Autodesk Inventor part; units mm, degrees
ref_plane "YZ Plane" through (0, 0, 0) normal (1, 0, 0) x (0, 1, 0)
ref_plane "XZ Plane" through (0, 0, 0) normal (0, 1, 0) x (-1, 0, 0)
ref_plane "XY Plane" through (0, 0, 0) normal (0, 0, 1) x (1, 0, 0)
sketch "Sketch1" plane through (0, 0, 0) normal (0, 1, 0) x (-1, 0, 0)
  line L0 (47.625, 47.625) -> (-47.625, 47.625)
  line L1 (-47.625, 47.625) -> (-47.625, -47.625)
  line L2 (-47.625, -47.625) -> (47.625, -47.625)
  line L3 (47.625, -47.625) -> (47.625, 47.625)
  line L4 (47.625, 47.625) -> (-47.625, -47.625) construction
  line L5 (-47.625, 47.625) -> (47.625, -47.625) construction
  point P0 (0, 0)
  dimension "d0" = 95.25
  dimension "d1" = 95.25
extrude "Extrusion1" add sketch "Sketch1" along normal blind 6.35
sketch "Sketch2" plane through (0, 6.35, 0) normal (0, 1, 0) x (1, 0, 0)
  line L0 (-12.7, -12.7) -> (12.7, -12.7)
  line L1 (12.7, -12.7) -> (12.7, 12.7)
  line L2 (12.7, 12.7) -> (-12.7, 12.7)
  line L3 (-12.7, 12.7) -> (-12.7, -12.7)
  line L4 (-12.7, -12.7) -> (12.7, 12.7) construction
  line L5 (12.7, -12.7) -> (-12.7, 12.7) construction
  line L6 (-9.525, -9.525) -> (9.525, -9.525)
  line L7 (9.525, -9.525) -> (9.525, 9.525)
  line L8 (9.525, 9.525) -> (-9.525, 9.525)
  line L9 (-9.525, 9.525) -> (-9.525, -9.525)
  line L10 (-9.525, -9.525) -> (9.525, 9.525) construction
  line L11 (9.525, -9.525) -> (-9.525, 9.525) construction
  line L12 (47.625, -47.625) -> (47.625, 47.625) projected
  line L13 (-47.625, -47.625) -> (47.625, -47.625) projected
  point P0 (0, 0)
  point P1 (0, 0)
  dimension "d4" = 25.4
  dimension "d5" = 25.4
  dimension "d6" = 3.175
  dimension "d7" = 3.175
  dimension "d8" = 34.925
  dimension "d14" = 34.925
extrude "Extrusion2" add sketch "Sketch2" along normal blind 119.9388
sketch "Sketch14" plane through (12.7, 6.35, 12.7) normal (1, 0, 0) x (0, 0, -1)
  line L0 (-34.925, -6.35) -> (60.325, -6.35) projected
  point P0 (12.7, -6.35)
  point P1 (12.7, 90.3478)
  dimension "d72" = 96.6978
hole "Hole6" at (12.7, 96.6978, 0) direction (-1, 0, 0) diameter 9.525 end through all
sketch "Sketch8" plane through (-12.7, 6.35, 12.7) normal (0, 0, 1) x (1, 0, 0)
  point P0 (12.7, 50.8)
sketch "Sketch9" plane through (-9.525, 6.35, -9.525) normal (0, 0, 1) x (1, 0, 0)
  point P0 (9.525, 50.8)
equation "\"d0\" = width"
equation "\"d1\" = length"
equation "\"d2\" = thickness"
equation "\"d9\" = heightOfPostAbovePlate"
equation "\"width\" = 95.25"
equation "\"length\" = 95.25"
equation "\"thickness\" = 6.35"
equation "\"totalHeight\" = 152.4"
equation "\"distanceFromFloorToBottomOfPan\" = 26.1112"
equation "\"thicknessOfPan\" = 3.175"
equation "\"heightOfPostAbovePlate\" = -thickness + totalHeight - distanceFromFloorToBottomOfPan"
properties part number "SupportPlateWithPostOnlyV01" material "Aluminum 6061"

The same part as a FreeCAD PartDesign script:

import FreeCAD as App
import Part
import Sketcher
from FreeCAD import Vector
Q = App.Units.Quantity

doc = App.newDocument("Part")
body = doc.addObject("PartDesign::Body", "Body")

# Sketch on XZ plane
sketch1 = doc.addObject("Sketcher::SketchObject", "Sketch")
body.addObject(sketch1)
sketch1.AttachmentSupport = (doc.XZ_Plane, [""])
sketch1.MapMode = "FlatFace"
sketch1.addGeometry([
    Part.LineSegment(Vector(-47.625, -47.625, 0), Vector(-47.625, 47.625, 0)),
    Part.LineSegment(Vector(-47.625, 47.625, 0), Vector(47.625, 47.625, 0)),
    Part.LineSegment(Vector(47.625, 47.625, 0), Vector(47.625, -47.625, 0)),
    Part.LineSegment(Vector(47.625, -47.625, 0), Vector(-47.625, -47.625, 0)),
], False)
sketch1.addConstraint([
    Sketcher.Constraint("Coincident", 0, 2, 1, 1),
    Sketcher.Constraint("Coincident", 1, 2, 2, 1),
    Sketcher.Constraint("Coincident", 2, 2, 3, 1),
    Sketcher.Constraint("Coincident", 3, 2, 0, 1),
    Sketcher.Constraint("Vertical", 0),
    Sketcher.Constraint("Horizontal", 1),
    Sketcher.Constraint("Vertical", 2),
    Sketcher.Constraint("Horizontal", 3),
    Sketcher.Constraint("Symmetric", 0, 2, 2, 2, -1, 1),
    Sketcher.Constraint("Equal", 3, 0),
    Sketcher.Constraint("DistanceX", 1, 1, 1, 2, Q("3.75 in")),
])
pad1 = doc.addObject("PartDesign::Pad", "Pad")
body.addObject(pad1)
pad1.Profile = sketch1
pad1.Length = Q("0.25 in")
pad1.Reversed = True

# Sketch on XZ plane
sketch2 = doc.addObject("Sketcher::SketchObject", "Sketch001")
body.addObject(sketch2)
sketch2.AttachmentSupport = (doc.XZ_Plane, [""])
sketch2.MapMode = "FlatFace"
sketch2.AttachmentOffset = App.Placement(Vector(0, 0, -0.25 * 25.4), App.Rotation())
sketch2.addGeometry([
    Part.LineSegment(Vector(-12.7, -12.7, 0), Vector(-12.7, 12.7, 0)),  # 0
    Part.LineSegment(Vector(-12.7, 12.7, 0), Vector(12.7, 12.7, 0)),  # 1
    Part.LineSegment(Vector(12.7, 12.7, 0), Vector(12.7, -12.7, 0)),  # 2
    Part.LineSegment(Vector(12.7, -12.7, 0), Vector(-12.7, -12.7, 0)),  # 3
    Part.LineSegment(Vector(9.525, 9.525, 0), Vector(-9.525, 9.525, 0)),  # 4
    Part.LineSegment(Vector(-9.525, 9.525, 0), Vector(-9.525, -9.525, 0)),  # 5
    Part.LineSegment(Vector(-9.525, -9.525, 0), Vector(9.525, -9.525, 0)),  # 6
    Part.LineSegment(Vector(9.525, -9.525, 0), Vector(9.525, 9.525, 0)),  # 7
], False)
sketch2.addConstraint([
    Sketcher.Constraint("Coincident", 0, 2, 1, 1),
    Sketcher.Constraint("Coincident", 1, 2, 2, 1),
    Sketcher.Constraint("Coincident", 2, 2, 3, 1),
    Sketcher.Constraint("Coincident", 3, 2, 0, 1),
    Sketcher.Constraint("Coincident", 4, 2, 5, 1),
    Sketcher.Constraint("Coincident", 5, 2, 6, 1),
    Sketcher.Constraint("Coincident", 6, 2, 7, 1),
    Sketcher.Constraint("Coincident", 7, 2, 4, 1),
    Sketcher.Constraint("Vertical", 0),
    Sketcher.Constraint("Horizontal", 1),
    Sketcher.Constraint("Vertical", 2),
    Sketcher.Constraint("Horizontal", 3),
    Sketcher.Constraint("Horizontal", 4),
    Sketcher.Constraint("Vertical", 5),
    Sketcher.Constraint("Horizontal", 6),
    Sketcher.Constraint("Vertical", 7),
    Sketcher.Constraint("Symmetric", 0, 2, 2, 2, -1, 1),
    Sketcher.Constraint("Symmetric", 4, 2, 6, 2, -1, 1),
    Sketcher.Constraint("Equal", 3, 0),
    Sketcher.Constraint("Equal", 6, 5),
    Sketcher.Constraint("DistanceX", 1, 1, 1, 2, Q("1 in")),
    Sketcher.Constraint("DistanceX", 0, 2, 4, 2, Q("0.125 in")),
])
pad2 = doc.addObject("PartDesign::Pad", "Pad001")
body.addObject(pad2)
pad2.Profile = sketch2
pad2.Length = Q("4.722 in")
pad2.Reversed = True

# Sketch on YZ plane
sketch3 = doc.addObject("Sketcher::SketchObject", "Sketch002")
body.addObject(sketch3)
sketch3.AttachmentSupport = (doc.YZ_Plane, [""])
sketch3.MapMode = "FlatFace"
sketch3.AttachmentOffset = App.Placement(Vector(0, 0, 0.5 * 25.4), App.Rotation())
sketch3.addGeometry(Part.Circle(Vector(96.6978, 0, 0), Vector(0, 0, 1), 4.7625), False)
sketch3.addConstraint([
    Sketcher.Constraint("PointOnObject", 0, 3, -1),
    Sketcher.Constraint("Diameter", 0, Q("0.375 in")),
    Sketcher.Constraint("DistanceX", -1, 1, 0, 3, Q("3.807 in")),
])
doc.recompute()
hole = doc.addObject("PartDesign::Hole", "Hole")
body.addObject(hole)
hole.Profile = sketch3
hole.ThreadType = "None"
hole.Diameter = Q("0.375 in")
hole.DepthType = "ThroughAll"

doc.recompute()
